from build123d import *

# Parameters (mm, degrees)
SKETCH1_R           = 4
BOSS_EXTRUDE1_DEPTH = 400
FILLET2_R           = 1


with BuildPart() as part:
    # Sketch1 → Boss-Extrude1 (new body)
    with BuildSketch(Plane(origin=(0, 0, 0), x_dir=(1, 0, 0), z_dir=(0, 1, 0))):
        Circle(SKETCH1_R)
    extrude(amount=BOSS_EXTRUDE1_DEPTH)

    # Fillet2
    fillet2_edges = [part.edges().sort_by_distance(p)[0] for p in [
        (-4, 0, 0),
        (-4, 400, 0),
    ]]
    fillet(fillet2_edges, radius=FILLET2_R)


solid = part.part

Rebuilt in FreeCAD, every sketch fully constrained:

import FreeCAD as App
import Part
import Sketcher


def edges_at(feature, points):
    """Names of the edges that pass closest to the given points."""
    edges = feature.Shape.Edges
    near = lambda p: min(range(len(edges)), key=lambda i: edges[i].distToShape(Part.Vertex(*p))[0])
    return sorted({f"Edge{near(p) + 1}" for p in points})

doc = App.newDocument("Part")
body = doc.addObject("PartDesign::Body", "Body")

# Sketch on XZ plane
sketch1 = body.newObject("Sketcher::SketchObject", "Sketch")
sketch1.AttachmentSupport = (doc.getObject("XZ_Plane"), [""])
sketch1.MapMode = "FlatFace"
sketch1.addGeometry(Part.Circle(App.Vector(0, 0, 0), App.Vector(0, 0, 1), 4), False)
sketch1.addConstraint([
    Sketcher.Constraint("Coincident", 0, 3, -1, 1),
    Sketcher.Constraint("Diameter", 0, 8.0),
])
pad1 = body.newObject("PartDesign::Pad", "Pad")
pad1.Profile = sketch1
pad1.Length = 400
pad1.Reversed = True
doc.recompute()

fillet = body.newObject("PartDesign::Fillet", "Fillet")
fillet.Base = (pad1, edges_at(pad1, [(-4, 0, 0), (-4, 400, 0)]))
fillet.Radius = 1

doc.recompute()
